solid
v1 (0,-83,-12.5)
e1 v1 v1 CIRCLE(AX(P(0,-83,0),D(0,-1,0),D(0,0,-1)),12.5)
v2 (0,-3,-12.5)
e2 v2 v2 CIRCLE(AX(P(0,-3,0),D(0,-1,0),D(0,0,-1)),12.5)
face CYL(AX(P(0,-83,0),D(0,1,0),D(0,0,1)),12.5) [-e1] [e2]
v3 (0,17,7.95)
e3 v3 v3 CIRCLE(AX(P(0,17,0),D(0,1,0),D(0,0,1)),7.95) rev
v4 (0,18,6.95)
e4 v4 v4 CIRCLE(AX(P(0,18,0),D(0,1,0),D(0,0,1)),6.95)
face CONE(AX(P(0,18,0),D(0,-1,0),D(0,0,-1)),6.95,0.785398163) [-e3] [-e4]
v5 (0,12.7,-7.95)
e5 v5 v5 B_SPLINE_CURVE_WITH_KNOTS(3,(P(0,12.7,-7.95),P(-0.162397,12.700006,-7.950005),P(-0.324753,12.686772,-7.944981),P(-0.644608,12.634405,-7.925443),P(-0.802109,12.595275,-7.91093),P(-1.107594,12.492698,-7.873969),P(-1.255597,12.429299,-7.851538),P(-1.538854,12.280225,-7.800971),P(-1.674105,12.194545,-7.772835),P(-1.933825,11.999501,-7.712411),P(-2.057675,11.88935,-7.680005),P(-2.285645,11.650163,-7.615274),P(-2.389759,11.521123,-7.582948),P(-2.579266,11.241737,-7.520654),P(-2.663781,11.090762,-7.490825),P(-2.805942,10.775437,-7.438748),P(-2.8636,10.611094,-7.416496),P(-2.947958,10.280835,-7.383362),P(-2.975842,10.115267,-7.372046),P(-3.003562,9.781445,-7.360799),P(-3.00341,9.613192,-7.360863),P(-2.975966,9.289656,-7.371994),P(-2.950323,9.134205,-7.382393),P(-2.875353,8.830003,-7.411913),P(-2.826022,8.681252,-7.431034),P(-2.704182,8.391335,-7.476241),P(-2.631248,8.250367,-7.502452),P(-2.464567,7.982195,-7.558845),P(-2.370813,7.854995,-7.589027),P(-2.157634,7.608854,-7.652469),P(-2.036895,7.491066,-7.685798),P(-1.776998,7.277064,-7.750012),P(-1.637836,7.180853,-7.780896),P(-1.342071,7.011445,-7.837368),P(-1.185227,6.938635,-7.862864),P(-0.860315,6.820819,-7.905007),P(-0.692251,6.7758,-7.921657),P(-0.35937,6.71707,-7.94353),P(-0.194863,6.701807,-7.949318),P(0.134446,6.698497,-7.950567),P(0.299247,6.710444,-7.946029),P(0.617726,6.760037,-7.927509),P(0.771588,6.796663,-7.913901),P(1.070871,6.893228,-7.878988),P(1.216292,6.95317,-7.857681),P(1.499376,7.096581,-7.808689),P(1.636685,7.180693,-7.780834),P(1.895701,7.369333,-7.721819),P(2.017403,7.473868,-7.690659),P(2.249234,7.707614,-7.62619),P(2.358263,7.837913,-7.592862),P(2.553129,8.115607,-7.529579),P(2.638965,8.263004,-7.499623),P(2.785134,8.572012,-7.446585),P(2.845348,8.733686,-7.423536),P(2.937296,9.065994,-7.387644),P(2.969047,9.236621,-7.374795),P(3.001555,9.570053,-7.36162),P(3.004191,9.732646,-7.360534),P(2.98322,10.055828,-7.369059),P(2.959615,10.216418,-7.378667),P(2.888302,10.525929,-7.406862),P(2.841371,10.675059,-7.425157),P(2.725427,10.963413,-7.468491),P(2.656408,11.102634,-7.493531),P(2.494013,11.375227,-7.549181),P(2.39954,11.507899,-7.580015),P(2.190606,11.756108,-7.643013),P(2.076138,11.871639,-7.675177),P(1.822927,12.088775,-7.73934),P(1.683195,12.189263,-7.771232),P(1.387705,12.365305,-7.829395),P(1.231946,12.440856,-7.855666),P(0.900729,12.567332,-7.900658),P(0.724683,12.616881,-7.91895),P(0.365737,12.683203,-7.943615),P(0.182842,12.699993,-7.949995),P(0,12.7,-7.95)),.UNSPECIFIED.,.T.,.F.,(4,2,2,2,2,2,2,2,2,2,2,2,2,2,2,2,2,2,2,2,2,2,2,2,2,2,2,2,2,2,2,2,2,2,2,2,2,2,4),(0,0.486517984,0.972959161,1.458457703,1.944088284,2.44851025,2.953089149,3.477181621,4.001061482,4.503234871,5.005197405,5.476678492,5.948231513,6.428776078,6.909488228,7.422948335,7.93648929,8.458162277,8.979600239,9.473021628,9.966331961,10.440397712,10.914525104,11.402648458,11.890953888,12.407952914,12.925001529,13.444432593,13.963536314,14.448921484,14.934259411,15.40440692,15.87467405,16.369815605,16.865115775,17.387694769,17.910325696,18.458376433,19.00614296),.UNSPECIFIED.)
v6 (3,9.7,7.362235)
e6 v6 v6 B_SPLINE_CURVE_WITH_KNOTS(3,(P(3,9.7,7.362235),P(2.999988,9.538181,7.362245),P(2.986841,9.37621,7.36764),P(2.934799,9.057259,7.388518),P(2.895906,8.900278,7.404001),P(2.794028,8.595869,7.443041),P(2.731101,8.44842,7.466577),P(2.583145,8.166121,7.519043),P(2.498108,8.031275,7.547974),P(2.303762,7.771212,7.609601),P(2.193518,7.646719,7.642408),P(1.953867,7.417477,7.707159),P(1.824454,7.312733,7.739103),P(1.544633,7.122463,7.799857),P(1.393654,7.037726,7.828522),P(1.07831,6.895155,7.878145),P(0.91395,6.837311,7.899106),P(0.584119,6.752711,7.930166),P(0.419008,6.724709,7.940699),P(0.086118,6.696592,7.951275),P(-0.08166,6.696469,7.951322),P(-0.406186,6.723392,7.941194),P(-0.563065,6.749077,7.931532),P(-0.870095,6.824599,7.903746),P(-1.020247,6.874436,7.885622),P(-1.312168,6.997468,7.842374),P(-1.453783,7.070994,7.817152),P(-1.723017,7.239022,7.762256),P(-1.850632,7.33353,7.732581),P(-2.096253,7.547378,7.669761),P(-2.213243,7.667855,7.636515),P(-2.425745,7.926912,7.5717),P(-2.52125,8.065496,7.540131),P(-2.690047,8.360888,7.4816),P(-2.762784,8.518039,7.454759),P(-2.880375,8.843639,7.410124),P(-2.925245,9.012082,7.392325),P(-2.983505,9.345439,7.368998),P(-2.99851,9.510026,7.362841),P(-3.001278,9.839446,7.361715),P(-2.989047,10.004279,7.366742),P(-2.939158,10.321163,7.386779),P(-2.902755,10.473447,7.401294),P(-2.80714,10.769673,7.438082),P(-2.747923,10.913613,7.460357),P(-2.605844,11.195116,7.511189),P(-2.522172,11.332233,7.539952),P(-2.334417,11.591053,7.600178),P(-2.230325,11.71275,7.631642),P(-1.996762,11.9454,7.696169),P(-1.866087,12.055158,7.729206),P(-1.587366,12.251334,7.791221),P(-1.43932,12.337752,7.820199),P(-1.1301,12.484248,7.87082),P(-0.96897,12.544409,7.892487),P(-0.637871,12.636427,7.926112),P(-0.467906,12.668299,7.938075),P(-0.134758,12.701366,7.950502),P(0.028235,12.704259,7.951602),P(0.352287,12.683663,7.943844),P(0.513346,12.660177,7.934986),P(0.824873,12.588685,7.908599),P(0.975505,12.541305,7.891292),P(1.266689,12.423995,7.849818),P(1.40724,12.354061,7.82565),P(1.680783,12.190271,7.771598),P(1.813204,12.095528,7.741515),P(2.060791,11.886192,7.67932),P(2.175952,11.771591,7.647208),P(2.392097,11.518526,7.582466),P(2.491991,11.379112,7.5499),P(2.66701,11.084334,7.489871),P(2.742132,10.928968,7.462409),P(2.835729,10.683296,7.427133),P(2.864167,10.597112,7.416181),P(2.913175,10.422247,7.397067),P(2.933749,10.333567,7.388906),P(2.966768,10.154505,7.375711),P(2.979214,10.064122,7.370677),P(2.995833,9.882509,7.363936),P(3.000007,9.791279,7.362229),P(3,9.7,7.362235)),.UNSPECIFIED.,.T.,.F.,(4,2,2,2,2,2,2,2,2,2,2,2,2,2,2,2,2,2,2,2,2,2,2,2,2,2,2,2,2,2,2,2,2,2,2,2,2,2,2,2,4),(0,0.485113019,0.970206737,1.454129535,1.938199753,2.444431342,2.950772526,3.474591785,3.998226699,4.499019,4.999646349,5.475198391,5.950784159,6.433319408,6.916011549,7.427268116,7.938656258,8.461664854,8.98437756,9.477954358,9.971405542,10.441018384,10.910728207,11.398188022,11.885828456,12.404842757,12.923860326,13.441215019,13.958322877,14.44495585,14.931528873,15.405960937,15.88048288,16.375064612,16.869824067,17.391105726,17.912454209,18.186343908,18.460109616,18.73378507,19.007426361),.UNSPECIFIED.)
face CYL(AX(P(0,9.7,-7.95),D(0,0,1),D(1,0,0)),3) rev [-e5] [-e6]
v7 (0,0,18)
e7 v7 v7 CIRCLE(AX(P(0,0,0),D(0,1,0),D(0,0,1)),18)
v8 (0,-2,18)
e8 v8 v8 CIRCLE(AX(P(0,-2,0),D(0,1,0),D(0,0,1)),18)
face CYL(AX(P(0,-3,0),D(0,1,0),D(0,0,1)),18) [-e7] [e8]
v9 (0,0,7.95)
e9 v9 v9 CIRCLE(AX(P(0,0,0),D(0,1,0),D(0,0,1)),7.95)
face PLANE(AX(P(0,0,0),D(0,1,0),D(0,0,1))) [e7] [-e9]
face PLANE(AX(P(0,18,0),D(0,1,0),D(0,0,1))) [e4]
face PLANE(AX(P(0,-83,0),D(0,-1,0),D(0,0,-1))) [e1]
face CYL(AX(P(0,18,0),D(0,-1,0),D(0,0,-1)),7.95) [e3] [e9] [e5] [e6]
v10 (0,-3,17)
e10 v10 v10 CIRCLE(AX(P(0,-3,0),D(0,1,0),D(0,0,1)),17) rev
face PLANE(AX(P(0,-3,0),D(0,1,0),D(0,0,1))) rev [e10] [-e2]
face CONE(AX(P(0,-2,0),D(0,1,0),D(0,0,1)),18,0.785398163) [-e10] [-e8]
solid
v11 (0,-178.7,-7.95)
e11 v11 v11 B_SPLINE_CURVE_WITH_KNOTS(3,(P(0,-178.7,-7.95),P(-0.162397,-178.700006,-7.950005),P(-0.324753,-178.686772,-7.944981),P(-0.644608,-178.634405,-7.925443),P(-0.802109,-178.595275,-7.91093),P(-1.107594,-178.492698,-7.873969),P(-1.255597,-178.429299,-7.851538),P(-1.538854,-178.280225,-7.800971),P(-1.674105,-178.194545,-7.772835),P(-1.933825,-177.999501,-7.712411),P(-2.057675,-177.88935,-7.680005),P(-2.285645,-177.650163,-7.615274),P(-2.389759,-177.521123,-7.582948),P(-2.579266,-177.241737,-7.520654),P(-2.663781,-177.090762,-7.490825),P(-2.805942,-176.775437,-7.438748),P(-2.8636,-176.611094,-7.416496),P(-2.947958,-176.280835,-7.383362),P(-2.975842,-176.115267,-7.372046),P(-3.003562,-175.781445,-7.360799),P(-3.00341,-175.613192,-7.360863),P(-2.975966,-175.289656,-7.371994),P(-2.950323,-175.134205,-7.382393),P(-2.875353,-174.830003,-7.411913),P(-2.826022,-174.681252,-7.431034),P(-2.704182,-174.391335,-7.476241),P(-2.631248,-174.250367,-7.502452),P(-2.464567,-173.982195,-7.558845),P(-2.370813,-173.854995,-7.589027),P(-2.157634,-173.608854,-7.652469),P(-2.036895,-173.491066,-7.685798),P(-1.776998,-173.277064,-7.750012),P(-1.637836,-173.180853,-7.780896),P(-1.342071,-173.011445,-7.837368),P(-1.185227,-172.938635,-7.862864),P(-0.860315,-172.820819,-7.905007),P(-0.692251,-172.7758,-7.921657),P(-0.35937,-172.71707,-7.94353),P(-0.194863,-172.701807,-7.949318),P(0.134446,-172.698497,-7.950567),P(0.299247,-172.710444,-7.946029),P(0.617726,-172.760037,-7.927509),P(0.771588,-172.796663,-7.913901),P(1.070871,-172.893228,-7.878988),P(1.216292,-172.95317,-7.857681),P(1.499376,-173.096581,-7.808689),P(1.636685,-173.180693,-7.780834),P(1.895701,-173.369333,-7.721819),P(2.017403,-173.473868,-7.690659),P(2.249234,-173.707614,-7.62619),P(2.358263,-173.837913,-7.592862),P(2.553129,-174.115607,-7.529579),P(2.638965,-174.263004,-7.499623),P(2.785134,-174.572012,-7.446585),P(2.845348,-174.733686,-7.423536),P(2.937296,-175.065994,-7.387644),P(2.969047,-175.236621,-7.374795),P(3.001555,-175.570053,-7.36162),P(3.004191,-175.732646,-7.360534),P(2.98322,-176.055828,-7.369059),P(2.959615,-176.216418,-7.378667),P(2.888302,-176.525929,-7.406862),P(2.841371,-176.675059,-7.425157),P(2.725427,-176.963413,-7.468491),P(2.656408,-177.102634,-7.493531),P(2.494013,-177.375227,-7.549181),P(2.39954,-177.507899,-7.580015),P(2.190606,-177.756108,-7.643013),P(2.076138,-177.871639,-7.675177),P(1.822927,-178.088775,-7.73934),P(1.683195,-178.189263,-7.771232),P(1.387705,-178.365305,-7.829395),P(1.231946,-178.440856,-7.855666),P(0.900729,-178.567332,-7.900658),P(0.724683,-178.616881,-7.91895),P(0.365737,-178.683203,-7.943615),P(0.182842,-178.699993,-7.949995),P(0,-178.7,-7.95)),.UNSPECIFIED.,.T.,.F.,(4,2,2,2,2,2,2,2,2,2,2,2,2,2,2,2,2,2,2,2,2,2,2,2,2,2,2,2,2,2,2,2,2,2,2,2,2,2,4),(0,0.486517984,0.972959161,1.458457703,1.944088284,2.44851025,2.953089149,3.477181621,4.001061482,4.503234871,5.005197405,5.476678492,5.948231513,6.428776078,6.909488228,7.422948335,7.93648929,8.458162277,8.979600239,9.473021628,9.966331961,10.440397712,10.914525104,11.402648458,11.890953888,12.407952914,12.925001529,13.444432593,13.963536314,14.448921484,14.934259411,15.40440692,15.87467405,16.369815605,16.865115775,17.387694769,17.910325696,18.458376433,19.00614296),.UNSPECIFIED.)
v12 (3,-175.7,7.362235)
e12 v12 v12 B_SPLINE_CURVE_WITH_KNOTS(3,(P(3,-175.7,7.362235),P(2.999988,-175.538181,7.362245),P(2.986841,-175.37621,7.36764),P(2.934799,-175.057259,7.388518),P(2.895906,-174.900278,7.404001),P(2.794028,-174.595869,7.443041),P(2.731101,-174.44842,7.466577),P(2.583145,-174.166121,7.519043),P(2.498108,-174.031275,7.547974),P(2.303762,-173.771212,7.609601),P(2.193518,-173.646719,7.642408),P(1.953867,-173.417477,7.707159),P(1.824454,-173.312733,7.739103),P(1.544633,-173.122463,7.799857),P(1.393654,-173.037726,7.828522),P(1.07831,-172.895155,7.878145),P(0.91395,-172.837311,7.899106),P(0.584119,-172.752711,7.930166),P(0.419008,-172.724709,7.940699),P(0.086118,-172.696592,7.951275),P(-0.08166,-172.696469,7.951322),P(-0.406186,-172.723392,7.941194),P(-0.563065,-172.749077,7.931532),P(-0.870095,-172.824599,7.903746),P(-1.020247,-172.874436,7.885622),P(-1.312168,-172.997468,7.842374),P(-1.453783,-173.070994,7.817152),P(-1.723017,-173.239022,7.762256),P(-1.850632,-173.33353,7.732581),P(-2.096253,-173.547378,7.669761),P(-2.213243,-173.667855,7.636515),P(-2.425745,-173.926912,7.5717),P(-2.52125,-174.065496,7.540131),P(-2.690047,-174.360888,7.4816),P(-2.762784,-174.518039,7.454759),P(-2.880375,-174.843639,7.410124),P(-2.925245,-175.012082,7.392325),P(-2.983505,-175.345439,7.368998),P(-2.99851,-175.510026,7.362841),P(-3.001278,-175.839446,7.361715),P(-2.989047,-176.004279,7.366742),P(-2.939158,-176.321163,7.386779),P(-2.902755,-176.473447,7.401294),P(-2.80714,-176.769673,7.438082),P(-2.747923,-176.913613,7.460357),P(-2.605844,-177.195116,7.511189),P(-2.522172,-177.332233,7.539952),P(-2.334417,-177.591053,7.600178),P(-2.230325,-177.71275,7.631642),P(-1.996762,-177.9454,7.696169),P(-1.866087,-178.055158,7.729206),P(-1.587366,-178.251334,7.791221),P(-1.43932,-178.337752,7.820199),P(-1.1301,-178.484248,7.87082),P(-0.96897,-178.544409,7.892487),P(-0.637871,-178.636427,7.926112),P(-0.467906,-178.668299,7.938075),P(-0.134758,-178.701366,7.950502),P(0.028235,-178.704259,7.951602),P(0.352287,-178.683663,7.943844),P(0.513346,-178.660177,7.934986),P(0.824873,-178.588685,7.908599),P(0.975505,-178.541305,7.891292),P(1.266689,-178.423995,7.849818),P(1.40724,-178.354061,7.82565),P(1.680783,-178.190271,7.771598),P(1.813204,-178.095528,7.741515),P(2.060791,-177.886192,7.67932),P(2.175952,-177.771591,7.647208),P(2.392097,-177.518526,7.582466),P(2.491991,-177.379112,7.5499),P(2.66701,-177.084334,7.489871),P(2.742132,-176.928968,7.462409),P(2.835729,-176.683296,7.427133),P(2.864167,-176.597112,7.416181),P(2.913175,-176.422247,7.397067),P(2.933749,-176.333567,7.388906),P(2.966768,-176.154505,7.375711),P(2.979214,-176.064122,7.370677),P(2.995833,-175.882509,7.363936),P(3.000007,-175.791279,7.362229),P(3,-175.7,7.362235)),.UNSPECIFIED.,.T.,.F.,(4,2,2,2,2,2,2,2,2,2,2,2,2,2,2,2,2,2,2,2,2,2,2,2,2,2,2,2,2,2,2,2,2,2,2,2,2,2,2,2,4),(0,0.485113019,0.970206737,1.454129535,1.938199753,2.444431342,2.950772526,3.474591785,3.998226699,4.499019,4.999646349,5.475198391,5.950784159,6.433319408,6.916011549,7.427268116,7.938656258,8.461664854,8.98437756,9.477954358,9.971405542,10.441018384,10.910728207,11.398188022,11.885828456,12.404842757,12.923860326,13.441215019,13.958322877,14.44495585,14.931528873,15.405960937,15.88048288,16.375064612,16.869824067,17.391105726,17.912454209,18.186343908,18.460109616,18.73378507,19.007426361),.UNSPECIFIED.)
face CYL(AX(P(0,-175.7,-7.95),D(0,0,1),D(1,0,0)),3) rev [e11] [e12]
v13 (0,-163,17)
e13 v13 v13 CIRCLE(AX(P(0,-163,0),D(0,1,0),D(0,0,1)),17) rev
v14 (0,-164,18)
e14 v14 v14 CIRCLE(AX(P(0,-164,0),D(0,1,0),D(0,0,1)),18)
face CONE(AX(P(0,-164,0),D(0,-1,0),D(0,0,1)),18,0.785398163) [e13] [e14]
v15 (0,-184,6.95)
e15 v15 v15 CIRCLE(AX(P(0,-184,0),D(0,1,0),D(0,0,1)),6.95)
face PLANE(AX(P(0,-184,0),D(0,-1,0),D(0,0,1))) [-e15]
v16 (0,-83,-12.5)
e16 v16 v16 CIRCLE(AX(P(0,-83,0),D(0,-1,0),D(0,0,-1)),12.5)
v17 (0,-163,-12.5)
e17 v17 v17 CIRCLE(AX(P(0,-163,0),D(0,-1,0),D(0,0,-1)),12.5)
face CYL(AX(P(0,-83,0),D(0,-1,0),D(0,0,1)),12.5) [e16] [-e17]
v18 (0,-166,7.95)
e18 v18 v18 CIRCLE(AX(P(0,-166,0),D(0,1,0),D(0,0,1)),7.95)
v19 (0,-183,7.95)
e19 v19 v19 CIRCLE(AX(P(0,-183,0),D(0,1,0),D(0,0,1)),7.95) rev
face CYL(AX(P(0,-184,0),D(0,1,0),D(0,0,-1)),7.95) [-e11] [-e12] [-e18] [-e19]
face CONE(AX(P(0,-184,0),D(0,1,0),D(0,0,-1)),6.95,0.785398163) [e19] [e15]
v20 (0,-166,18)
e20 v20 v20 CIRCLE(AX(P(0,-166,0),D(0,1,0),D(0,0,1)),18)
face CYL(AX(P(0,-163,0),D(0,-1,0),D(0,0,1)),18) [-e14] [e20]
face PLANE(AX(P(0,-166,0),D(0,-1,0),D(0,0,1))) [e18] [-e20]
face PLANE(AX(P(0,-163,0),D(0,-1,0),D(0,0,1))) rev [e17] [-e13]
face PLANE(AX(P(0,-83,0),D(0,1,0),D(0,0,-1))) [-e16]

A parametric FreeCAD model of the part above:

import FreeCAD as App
import Part
import Sketcher
from FreeCAD import Vector


def edges_at(feature, points):
    """Names of the edges that pass closest to the given points."""
    edges = feature.Shape.Edges
    near = lambda p: min(range(len(edges)), key=lambda i: edges[i].distToShape(Part.Vertex(*p))[0])
    return sorted({f"Edge{near(p) + 1}" for p in points})

doc = App.newDocument("Part")
params = doc.addObject("Spreadsheet::Sheet", "Params")
for row, (alias, value) in enumerate([
    ("sketch1_diameter", "15.9 mm"),
    ("pad1_length", "18 mm"),
    ("chamfer_size", "1 mm"),
    ("sketch2_diameter", "6 mm"),
    ("sketch3_diameter", "36 mm"),
    ("pad2_length", "3 mm"),
    ("chamfer2_size", "1 mm"),
    ("sketch4_diameter", "25 mm"),
    ("pad3_length", "80 mm"),
], start=1):
    params.set(f"A{row}", alias)
    params.set(f"B{row}", "=" + value)
    params.setAlias(f"B{row}", alias)

body = doc.addObject("PartDesign::Body", "Body")

# Sketch on XZ plane
sketch1 = body.newObject("Sketcher::SketchObject", "Sketch")
sketch1.AttachmentSupport = (doc.getObject("XZ_Plane"), [""])
sketch1.MapMode = "FlatFace"
sketch1.addGeometry(Part.Circle(Vector(0, 0, 0), Vector(0, 0, 1), 8), False)
sketch1.addConstraint(Sketcher.Constraint("Coincident", 0, 3, -1, 1))
sketch1.addConstraint(Sketcher.Constraint("Diameter", 0, 15.9))
sketch1.setExpression("Constraints[1]", "Params.sketch1_diameter")
pad1 = body.newObject("PartDesign::Pad", "Pad")
pad1.Profile = sketch1
pad1.setExpression("Length", "Params.pad1_length")
pad1.Reversed = True
doc.recompute()

chamfer = body.newObject("PartDesign::Chamfer", "Chamfer")
chamfer.Base = (pad1, edges_at(pad1, [(0, 18, -7.95)]))
chamfer.setExpression("Size", "Params.chamfer_size")

# Sketch on XY plane
sketch2 = body.newObject("Sketcher::SketchObject", "Sketch001")
sketch2.AttachmentSupport = (doc.getObject("XY_Plane"), [""])
sketch2.MapMode = "FlatFace"
sketch2.addGeometry(Part.Circle(Vector(0, 9.7, 0), Vector(0, 0, 1), 3), False)
sketch2.addConstraint(Sketcher.Constraint("PointOnObject", 0, 3, -2))
sketch2.addConstraint(Sketcher.Constraint("Diameter", 0, 6.0))
sketch2.addConstraint(Sketcher.Constraint("DistanceY", -1, 1, 0, 3, 9.7))
sketch2.setExpression("Constraints[1]", "Params.sketch2_diameter")
pocket1 = body.newObject("PartDesign::Pocket", "Pocket")
pocket1.Profile = sketch2
pocket1.Type = "ThroughAll"
pocket1.Midplane = True

# Sketch on XZ plane
sketch3 = body.newObject("Sketcher::SketchObject", "Sketch002")
sketch3.AttachmentSupport = (doc.getObject("XZ_Plane"), [""])
sketch3.MapMode = "FlatFace"
sketch3.addGeometry(Part.Circle(Vector(0, 0, 0), Vector(0, 0, 1), 18), False)
sketch3.addConstraint(Sketcher.Constraint("Coincident", 0, 3, -1, 1))
sketch3.addConstraint(Sketcher.Constraint("Diameter", 0, 36.0))
sketch3.setExpression("Constraints[1]", "Params.sketch3_diameter")
pad2 = body.newObject("PartDesign::Pad", "Pad001")
pad2.Profile = sketch3
pad2.setExpression("Length", "Params.pad2_length")
doc.recompute()

chamfer2 = body.newObject("PartDesign::Chamfer", "Chamfer001")
chamfer2.Base = (pad2, edges_at(pad2, [(0, -3, -18)]))
chamfer2.setExpression("Size", "Params.chamfer2_size")

# Sketch on XZ plane
sketch4 = body.newObject("Sketcher::SketchObject", "Sketch003")
sketch4.AttachmentSupport = (doc.getObject("XZ_Plane"), [""])
sketch4.MapMode = "FlatFace"
sketch4.AttachmentOffset = App.Placement(Vector(0, 0, 3), App.Rotation())
sketch4.addGeometry(Part.Circle(Vector(0, 0, 0), Vector(0, 0, 1), 12), False)
sketch4.addConstraint(Sketcher.Constraint("Coincident", 0, 3, -1, 1))
sketch4.addConstraint(Sketcher.Constraint("Diameter", 0, 25.0))
sketch4.setExpression("Constraints[1]", "Params.sketch4_diameter")
pad3 = body.newObject("PartDesign::Pad", "Pad002")
pad3.Profile = sketch4
pad3.setExpression("Length", "Params.pad3_length")
body2 = doc.addObject("PartDesign::Body", "Body001")
doc.recompute()

mirroring = doc.addObject("Part::Mirroring", "Mirroring")
mirroring.Source = body
mirroring.Base = Vector(0, -83, 0)
mirroring.Normal = Vector(0, -1, 0)
body2.BaseFeature = mirroring
doc.recompute()
mirroring.Visibility = False

doc.recompute()
